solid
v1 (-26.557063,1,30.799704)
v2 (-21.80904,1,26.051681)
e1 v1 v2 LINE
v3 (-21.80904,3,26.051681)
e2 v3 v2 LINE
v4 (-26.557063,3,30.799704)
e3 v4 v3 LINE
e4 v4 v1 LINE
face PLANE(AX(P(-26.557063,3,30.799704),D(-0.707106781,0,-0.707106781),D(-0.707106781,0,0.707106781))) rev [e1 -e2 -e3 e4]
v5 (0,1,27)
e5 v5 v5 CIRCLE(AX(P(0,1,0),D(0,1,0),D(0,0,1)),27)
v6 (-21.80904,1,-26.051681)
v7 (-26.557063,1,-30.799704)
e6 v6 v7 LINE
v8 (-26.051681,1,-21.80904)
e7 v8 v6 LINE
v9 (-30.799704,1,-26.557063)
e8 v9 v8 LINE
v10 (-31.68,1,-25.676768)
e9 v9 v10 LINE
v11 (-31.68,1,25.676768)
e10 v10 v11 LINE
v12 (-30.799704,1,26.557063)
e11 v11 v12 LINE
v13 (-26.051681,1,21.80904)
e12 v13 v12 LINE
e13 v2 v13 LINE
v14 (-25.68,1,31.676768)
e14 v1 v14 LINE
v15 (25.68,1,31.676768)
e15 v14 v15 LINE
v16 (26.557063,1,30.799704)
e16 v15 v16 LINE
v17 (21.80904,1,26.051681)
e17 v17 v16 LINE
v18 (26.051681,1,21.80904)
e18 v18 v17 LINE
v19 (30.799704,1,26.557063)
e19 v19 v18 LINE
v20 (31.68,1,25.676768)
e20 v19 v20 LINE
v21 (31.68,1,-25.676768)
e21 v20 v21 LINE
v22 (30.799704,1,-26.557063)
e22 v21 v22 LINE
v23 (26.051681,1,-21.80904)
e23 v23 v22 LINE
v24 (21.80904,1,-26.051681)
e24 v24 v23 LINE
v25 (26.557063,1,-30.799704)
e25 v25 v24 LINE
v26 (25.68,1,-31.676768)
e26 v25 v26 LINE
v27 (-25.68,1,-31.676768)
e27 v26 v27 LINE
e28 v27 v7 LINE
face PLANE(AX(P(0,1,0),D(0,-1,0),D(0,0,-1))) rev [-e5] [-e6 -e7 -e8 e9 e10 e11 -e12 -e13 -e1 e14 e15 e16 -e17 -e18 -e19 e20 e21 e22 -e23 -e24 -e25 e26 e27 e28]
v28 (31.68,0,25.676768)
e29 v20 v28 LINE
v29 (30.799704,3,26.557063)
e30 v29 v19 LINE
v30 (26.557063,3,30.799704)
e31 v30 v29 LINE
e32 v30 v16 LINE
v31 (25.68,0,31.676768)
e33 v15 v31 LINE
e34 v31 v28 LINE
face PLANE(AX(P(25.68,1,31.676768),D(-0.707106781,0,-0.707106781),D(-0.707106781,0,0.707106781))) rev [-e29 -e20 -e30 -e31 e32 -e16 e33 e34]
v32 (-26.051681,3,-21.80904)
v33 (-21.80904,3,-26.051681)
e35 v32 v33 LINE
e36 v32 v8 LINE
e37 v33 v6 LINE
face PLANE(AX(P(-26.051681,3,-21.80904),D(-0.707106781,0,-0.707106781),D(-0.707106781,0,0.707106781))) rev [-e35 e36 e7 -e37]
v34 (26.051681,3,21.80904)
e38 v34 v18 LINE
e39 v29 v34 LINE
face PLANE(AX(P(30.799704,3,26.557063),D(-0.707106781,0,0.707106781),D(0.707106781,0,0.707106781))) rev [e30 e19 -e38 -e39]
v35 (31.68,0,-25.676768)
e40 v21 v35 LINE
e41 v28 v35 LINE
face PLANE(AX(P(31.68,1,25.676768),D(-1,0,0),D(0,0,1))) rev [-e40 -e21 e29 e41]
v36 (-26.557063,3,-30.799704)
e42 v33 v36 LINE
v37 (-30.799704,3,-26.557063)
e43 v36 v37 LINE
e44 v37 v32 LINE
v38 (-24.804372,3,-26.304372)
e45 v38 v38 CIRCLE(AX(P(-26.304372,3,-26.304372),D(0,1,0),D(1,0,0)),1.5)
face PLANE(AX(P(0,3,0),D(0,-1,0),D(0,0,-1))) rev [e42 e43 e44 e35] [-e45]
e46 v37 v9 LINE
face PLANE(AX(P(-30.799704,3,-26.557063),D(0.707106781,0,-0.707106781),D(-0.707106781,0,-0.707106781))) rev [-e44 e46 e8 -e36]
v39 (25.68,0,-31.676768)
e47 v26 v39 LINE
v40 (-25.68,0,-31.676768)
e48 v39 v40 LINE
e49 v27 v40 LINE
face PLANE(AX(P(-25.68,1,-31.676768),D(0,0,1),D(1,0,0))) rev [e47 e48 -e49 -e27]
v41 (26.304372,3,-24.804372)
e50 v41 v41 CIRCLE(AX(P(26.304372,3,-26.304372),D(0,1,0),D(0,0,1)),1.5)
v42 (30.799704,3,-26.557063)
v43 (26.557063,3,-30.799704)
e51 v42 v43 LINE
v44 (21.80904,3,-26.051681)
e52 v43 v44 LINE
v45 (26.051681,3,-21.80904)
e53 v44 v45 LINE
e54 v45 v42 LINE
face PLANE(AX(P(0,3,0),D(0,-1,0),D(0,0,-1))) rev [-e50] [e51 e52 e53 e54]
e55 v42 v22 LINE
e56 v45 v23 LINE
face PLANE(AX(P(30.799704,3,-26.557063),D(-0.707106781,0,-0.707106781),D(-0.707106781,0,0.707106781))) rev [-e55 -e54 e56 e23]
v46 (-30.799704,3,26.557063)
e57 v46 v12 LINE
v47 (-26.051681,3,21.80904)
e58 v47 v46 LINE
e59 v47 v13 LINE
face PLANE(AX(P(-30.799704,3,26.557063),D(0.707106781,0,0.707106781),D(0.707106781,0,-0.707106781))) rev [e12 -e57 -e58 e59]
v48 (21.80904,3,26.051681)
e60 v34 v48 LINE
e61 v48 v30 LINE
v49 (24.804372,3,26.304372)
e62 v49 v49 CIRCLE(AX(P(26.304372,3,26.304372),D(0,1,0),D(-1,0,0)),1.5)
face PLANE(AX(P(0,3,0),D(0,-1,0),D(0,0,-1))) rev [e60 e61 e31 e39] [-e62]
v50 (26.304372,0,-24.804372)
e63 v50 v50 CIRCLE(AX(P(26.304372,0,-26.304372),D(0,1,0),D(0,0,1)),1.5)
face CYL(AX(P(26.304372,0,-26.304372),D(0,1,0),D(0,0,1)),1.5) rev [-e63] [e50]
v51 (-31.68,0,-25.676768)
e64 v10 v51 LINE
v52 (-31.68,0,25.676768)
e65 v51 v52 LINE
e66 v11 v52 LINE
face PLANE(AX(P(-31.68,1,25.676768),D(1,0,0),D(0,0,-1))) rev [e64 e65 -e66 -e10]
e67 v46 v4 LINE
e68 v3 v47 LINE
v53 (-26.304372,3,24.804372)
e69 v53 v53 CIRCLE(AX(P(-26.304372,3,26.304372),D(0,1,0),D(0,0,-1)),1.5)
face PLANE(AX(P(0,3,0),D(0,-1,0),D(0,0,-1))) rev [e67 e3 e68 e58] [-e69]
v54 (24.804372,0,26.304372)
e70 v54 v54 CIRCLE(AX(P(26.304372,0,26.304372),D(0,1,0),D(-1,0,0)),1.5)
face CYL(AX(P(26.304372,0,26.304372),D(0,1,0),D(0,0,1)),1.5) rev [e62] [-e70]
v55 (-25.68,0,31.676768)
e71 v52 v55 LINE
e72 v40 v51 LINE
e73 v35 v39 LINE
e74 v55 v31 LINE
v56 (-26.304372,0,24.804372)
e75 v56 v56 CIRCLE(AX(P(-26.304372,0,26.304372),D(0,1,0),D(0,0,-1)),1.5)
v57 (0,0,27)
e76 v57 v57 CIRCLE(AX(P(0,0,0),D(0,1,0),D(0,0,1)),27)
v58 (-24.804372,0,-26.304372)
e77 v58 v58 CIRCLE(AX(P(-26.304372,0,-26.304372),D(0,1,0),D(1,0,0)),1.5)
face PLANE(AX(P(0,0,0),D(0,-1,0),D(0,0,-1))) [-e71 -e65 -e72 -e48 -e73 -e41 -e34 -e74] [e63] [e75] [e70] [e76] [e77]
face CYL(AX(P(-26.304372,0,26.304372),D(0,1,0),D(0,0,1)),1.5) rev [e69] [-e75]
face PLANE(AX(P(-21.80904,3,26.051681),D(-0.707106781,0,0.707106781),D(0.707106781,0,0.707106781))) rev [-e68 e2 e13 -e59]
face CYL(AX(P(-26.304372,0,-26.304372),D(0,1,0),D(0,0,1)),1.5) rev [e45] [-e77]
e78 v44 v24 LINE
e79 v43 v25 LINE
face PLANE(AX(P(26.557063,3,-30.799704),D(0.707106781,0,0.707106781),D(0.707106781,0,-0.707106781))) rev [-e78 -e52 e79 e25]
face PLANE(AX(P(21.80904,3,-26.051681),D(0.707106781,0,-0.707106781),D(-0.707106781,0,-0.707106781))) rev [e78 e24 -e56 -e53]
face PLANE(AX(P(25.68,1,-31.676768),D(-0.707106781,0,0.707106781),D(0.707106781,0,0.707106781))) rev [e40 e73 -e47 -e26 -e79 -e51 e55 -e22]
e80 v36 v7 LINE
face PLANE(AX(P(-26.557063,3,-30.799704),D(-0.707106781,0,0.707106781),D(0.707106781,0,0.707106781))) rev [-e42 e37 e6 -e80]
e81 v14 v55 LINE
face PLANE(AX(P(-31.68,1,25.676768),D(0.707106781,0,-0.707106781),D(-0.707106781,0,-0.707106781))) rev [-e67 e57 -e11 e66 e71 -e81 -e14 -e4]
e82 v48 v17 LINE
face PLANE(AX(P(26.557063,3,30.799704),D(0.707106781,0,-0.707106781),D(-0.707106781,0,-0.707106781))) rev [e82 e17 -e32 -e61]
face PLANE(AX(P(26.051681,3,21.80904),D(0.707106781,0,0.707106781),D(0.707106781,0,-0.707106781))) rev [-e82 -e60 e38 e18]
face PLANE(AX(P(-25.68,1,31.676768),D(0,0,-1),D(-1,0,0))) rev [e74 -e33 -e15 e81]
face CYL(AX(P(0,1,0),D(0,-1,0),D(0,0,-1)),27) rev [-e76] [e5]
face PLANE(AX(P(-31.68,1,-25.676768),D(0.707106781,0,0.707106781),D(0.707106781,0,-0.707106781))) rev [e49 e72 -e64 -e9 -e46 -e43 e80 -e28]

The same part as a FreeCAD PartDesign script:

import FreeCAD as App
import Part
import Sketcher

V = App.Vector
Q = App.Units.Quantity

doc = App.newDocument("Part")
body = doc.addObject("PartDesign::Body", "Body")

sketch1 = body.newObject("Sketcher::SketchObject", "Sketch")
sketch1.AttachmentSupport = (doc.getObject("XZ_Plane"), [""])
sketch1.MapMode = "FlatFace"
sketch1.addGeometry([
    Part.LineSegment(V(-26, -32, 0), V(-32, -26, 0)),
    Part.LineSegment(V(-32, -26, 0), V(-32, 26, 0)),
    Part.LineSegment(V(-32, 26, 0), V(-26, 32, 0)),
    Part.LineSegment(V(-26, 32, 0), V(26, 32, 0)),
    Part.LineSegment(V(26, 32, 0), V(32, 26, 0)),
    Part.LineSegment(V(32, 26, 0), V(32, -26, 0)),
    Part.LineSegment(V(32, -26, 0), V(26, -32, 0)),
    Part.LineSegment(V(26, -32, 0), V(-26, -32, 0)),
    Part.Circle(V(0, 0, 0), V(0, 0, 1), 27),
], False)
sketch1.addConstraint([
    Sketcher.Constraint("Coincident", 0, 2, 1, 1),
    Sketcher.Constraint("Coincident", 1, 2, 2, 1),
    Sketcher.Constraint("Coincident", 2, 2, 3, 1),
    Sketcher.Constraint("Coincident", 3, 2, 4, 1),
    Sketcher.Constraint("Coincident", 4, 2, 5, 1),
    Sketcher.Constraint("Coincident", 5, 2, 6, 1),
    Sketcher.Constraint("Coincident", 6, 2, 7, 1),
    Sketcher.Constraint("Coincident", 7, 2, 0, 1),
    Sketcher.Constraint("Vertical", 1),
    Sketcher.Constraint("Horizontal", 3),
    Sketcher.Constraint("Vertical", 5),
    Sketcher.Constraint("Horizontal", 7),
    Sketcher.Constraint("Coincident", 8, 3, -1, 1),
    Sketcher.Constraint("Symmetric", 0, 2, 4, 2, -1, 1),
    Sketcher.Constraint("Symmetric", 2, 2, 6, 2, -1, 1),
    Sketcher.Constraint("Perpendicular", 0, 2),
    Sketcher.Constraint("Perpendicular", 2, 4),
    Sketcher.Constraint("Perpendicular", 4, 6),
    Sketcher.Constraint("Horizontal", 1, 2, 4, 2),
    Sketcher.Constraint("Vertical", 3, 2, 6, 2),
    Sketcher.Constraint("Diameter", 8, Q("54 mm")),
    Sketcher.Constraint("DistanceX", 1, 2, 2, 2, Q("6 mm")),
    Sketcher.Constraint("DistanceX", 3, 1, 3, 2, Q("51.36 mm")),
    Sketcher.Constraint("DistanceY", 1, 1, 1, 2, Q("51.353535 mm")),
])
pad1 = body.newObject("PartDesign::Pad", "Pad")
pad1.Profile = sketch1
pad1.Length = 1
pad1.Reversed = True

sketch2 = body.newObject("Sketcher::SketchObject", "Sketch001")
sketch2.AttachmentSupport = (doc.getObject("XZ_Plane"), [""])
sketch2.MapMode = "FlatFace"
sketch2.AttachmentOffset = App.Placement(V(0, 0, -1), App.Rotation())
sketch2.addGeometry([
    Part.LineSegment(V(27, -31, 0), V(22, -26, 0)),
    Part.LineSegment(V(22, -26, 0), V(26, -22, 0)),
    Part.LineSegment(V(26, -22, 0), V(31, -27, 0)),
    Part.LineSegment(V(31, -27, 0), V(27, -31, 0)),
    Part.LineSegment(V(31, 27, 0), V(26, 22, 0)),
    Part.LineSegment(V(26, 22, 0), V(22, 26, 0)),
    Part.LineSegment(V(22, 26, 0), V(27, 31, 0)),
    Part.LineSegment(V(27, 31, 0), V(31, 27, 0)),
    Part.LineSegment(V(-27, 31, 0), V(-22, 26, 0)),
    Part.LineSegment(V(-22, 26, 0), V(-26, 22, 0)),
    Part.LineSegment(V(-26, 22, 0), V(-31, 27, 0)),
    Part.LineSegment(V(-31, 27, 0), V(-27, 31, 0)),
    Part.LineSegment(V(-31, -27, 0), V(-26, -22, 0)),
    Part.LineSegment(V(-26, -22, 0), V(-22, -26, 0)),
    Part.LineSegment(V(-22, -26, 0), V(-27, -31, 0)),
    Part.LineSegment(V(-27, -31, 0), V(-31, -27, 0)),
], False)
sketch2.addConstraint([
    Sketcher.Constraint("Coincident", 0, 2, 1, 1),
    Sketcher.Constraint("Coincident", 1, 2, 2, 1),
    Sketcher.Constraint("Coincident", 2, 2, 3, 1),
    Sketcher.Constraint("Coincident", 3, 2, 0, 1),
    Sketcher.Constraint("Coincident", 4, 2, 5, 1),
    Sketcher.Constraint("Coincident", 5, 2, 6, 1),
    Sketcher.Constraint("Coincident", 6, 2, 7, 1),
    Sketcher.Constraint("Coincident", 7, 2, 4, 1),
    Sketcher.Constraint("Coincident", 8, 2, 9, 1),
    Sketcher.Constraint("Coincident", 9, 2, 10, 1),
    Sketcher.Constraint("Coincident", 10, 2, 11, 1),
    Sketcher.Constraint("Coincident", 11, 2, 8, 1),
    Sketcher.Constraint("Coincident", 12, 2, 13, 1),
    Sketcher.Constraint("Coincident", 13, 2, 14, 1),
    Sketcher.Constraint("Coincident", 14, 2, 15, 1),
    Sketcher.Constraint("Coincident", 15, 2, 12, 1),
    Sketcher.Constraint("Symmetric", 0, 2, 8, 2, -1, 1),
    Sketcher.Constraint("Symmetric", 1, 2, 9, 2, -1, 1),
    Sketcher.Constraint("Symmetric", 2, 2, 10, 2, -1, 1),
    Sketcher.Constraint("Symmetric", 3, 2, 11, 2, -1, 1),
    Sketcher.Constraint("Symmetric", 4, 2, 12, 2, -1, 1),
    Sketcher.Constraint("Symmetric", 5, 2, 13, 2, -1, 1),
    Sketcher.Constraint("Symmetric", 6, 2, 14, 2, -1, 1),
    Sketcher.Constraint("Symmetric", 7, 2, 15, 2, -1, 1),
    Sketcher.Constraint("Symmetric", 5, 2, 8, 2, -2),
    Sketcher.Constraint("Symmetric", 4, 2, 9, 2, -2),
    Sketcher.Constraint("Symmetric", 7, 2, 10, 2, -2),
    Sketcher.Constraint("Symmetric", 6, 2, 11, 2, -2),
    Sketcher.Constraint("Perpendicular", 0, 1),
    Sketcher.Constraint("Perpendicular", 1, 2),
    Sketcher.Constraint("Perpendicular", 2, 3),
    Sketcher.Constraint("Parallel", 3, 4),
    Sketcher.Constraint("Distance", 1, Q("6 mm")),
    Sketcher.Constraint("Distance", 0, Q("6.714719 mm")),
    Sketcher.Constraint("DistanceX", -1, 1, 0, 2, Q("21.80904 mm")),
    Sketcher.Constraint("DistanceY", 0, 2, -1, 1, Q("26.051681 mm")),
])
pad2 = body.newObject("PartDesign::Pad", "Pad001")
pad2.Profile = sketch2
pad2.Length = 2
pad2.Reversed = True

sketch3 = body.newObject("Sketcher::SketchObject", "Sketch002")
sketch3.AttachmentSupport = (doc.getObject("XZ_Plane"), [""])
sketch3.MapMode = "FlatFace"
sketch3.AttachmentOffset = App.Placement(V(0, 0, -3), App.Rotation())
sketch3.addGeometry(Part.Circle(V(26.3, -26.3, 0), V(0, 0, 1), 1.5), False)
sketch3.addConstraint([
    Sketcher.Constraint("Diameter", 0, Q("3 mm")),
    Sketcher.Constraint("DistanceX", -1, 1, 0, 3, Q("26.304372 mm")),
    Sketcher.Constraint("DistanceY", 0, 3, -1, 1, Q("26.304372 mm")),
])
pocket1 = body.newObject("PartDesign::Pocket", "Pocket")
pocket1.Profile = sketch3
pocket1.Type = "ThroughAll"
pocket1.Reversed = True
doc.recompute()

polarpattern = body.newObject("PartDesign::PolarPattern", "PolarPattern")
polarpattern.Originals = [pocket1]
polarpattern.Axis = (doc.getObject("Y_Axis"), [""])
polarpattern.Angle = 360
polarpattern.Occurrences = 4
body.Tip = polarpattern

doc.recompute()
